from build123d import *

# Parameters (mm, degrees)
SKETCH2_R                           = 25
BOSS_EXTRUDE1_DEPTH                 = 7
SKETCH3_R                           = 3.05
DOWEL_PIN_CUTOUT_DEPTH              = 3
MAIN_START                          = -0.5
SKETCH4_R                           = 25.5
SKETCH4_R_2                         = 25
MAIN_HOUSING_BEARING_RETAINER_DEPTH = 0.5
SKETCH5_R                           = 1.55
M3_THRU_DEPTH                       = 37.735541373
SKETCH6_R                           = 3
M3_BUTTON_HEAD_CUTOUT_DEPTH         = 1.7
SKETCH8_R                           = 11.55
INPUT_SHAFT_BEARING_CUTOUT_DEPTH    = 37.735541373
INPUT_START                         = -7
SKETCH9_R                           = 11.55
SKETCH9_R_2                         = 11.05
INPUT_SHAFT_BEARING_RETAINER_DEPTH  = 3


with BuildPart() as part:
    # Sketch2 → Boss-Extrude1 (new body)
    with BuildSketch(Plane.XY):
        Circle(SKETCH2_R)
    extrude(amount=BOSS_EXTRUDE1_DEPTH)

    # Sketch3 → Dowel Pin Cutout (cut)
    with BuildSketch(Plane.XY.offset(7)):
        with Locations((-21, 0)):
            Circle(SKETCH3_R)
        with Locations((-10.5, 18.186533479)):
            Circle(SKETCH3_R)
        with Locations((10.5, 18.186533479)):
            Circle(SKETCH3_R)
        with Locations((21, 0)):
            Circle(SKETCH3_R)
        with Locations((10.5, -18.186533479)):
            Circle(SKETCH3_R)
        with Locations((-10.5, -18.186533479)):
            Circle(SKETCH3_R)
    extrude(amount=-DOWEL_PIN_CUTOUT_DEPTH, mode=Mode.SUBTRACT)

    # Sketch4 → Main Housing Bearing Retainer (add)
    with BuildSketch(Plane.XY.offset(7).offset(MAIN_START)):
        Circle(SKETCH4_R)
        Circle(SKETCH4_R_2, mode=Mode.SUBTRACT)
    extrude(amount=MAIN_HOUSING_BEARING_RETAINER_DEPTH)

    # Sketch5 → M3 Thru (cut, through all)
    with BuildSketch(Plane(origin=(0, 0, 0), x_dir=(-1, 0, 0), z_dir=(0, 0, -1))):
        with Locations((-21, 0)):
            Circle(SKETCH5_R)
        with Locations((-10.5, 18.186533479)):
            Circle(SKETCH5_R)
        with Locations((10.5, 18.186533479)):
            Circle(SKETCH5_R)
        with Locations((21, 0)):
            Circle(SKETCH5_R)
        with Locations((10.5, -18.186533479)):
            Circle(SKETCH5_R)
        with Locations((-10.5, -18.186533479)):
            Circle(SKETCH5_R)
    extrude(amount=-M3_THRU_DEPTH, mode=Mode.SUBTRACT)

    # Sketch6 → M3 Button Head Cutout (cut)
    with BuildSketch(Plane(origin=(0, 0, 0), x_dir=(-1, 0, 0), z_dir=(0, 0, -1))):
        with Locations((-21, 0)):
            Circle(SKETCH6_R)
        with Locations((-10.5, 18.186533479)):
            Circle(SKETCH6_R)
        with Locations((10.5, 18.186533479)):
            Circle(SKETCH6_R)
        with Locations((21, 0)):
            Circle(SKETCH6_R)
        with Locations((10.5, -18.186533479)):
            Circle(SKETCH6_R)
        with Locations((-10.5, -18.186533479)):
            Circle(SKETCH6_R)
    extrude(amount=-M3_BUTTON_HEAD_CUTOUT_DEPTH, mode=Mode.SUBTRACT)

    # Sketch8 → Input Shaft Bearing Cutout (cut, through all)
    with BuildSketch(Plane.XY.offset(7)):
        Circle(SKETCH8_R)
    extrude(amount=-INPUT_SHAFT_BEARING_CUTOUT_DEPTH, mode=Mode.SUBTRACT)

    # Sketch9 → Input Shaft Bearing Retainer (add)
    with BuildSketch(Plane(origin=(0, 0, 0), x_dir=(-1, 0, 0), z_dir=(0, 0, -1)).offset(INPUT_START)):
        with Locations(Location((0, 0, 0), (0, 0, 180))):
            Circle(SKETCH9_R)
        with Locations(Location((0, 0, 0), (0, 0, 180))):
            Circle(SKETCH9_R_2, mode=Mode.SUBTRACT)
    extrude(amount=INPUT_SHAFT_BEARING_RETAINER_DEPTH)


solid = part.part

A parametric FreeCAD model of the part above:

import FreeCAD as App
import Part
import Sketcher
from FreeCAD import Vector
Q = App.Units.Quantity

doc = App.newDocument("Part")
body = doc.addObject("PartDesign::Body", "Body")

# Sketch on XY plane
sketch1 = body.newObject("Sketcher::SketchObject", "Sketch")
sketch1.AttachmentSupport = (doc.getObject("XY_Plane"), [""])
sketch1.MapMode = "FlatFace"
sketch1.addGeometry(Part.Circle(Vector(0, 0, 0), Vector(0, 0, 1), 25), False)
sketch1.addConstraint([
    Sketcher.Constraint("Coincident", 0, 3, -1, 1),
    Sketcher.Constraint("Diameter", 0, Q("50 mm")),
])
pad1 = body.newObject("PartDesign::Pad", "Pad")
pad1.Profile = sketch1
pad1.Length = 7

# Sketch on XY plane
sketch2 = body.newObject("Sketcher::SketchObject", "Sketch001")
sketch2.AttachmentSupport = (doc.getObject("XY_Plane"), [""])
sketch2.MapMode = "FlatFace"
sketch2.AttachmentOffset = App.Placement(Vector(0, 0, 7), App.Rotation())
sketch2.addGeometry([
    Part.Circle(Vector(-21, 0, 0), Vector(0, 0, 1), 3),  # 0
    Part.Circle(Vector(-10.5, 18.2, 0), Vector(0, 0, 1), 3),  # 1
    Part.Circle(Vector(10.5, 18.2, 0), Vector(0, 0, 1), 3),  # 2
    Part.Circle(Vector(21, 0, 0), Vector(0, 0, 1), 3),  # 3
    Part.Circle(Vector(10.5, -18.2, 0), Vector(0, 0, 1), 3),  # 4
    Part.Circle(Vector(-10.5, -18.2, 0), Vector(0, 0, 1), 3),  # 5
], False)
sketch2.addConstraint([
    Sketcher.Constraint("Equal", 0, 1),
    Sketcher.Constraint("Equal", 1, 2),
    Sketcher.Constraint("Equal", 2, 3),
    Sketcher.Constraint("Equal", 3, 4),
    Sketcher.Constraint("Equal", 4, 5),
    Sketcher.Constraint("Symmetric", 0, 3, 3, 3, -1, 1),
    Sketcher.Constraint("Symmetric", 1, 3, 4, 3, -1, 1),
    Sketcher.Constraint("Symmetric", 2, 3, 5, 3, -1, 1),
    Sketcher.Constraint("Symmetric", 1, 3, 2, 3, -2),
    Sketcher.Constraint("PointOnObject", 0, 3, -1),
    Sketcher.Constraint("Diameter", 0, Q("6.1 mm")),
    Sketcher.Constraint("DistanceX", 0, 3, -1, 1, Q("21 mm")),
    Sketcher.Constraint("DistanceX", 1, 3, 2, 3, Q("21 mm")),
    Sketcher.Constraint("DistanceY", -1, 1, 1, 3, Q("18.186533 mm")),
])
pocket1 = body.newObject("PartDesign::Pocket", "Pocket")
pocket1.Profile = sketch2
pocket1.Length = 3

# Sketch on XY plane
sketch3 = body.newObject("Sketcher::SketchObject", "Sketch002")
sketch3.AttachmentSupport = (doc.getObject("XY_Plane"), [""])
sketch3.MapMode = "FlatFace"
sketch3.AttachmentOffset = App.Placement(Vector(0, 0, 6.5), App.Rotation())
sketch3.addGeometry([
    Part.Circle(Vector(0, 0, 0), Vector(0, 0, 1), 26),
    Part.Circle(Vector(0, 0, 0), Vector(0, 0, 1), 25),
], False)
sketch3.addConstraint([
    Sketcher.Constraint("Coincident", 0, 3, -1, 1),
    Sketcher.Constraint("Coincident", 1, 3, -1, 1),
    Sketcher.Constraint("Diameter", 0, Q("51 mm")),
    Sketcher.Constraint("Diameter", 1, Q("50 mm")),
])
pad2 = body.newObject("PartDesign::Pad", "Pad001")
pad2.Profile = sketch3
pad2.Length = 0.5

# Sketch on XY plane
sketch4 = body.newObject("Sketcher::SketchObject", "Sketch003")
sketch4.AttachmentSupport = (doc.getObject("XY_Plane"), [""])
sketch4.MapMode = "FlatFace"
sketch4.addGeometry([
    Part.Circle(Vector(21, 0, 0), Vector(0, 0, 1), 1.6),  # 0
    Part.Circle(Vector(10.5, 18.2, 0), Vector(0, 0, 1), 1.6),  # 1
    Part.Circle(Vector(-10.5, 18.2, 0), Vector(0, 0, 1), 1.6),  # 2
    Part.Circle(Vector(-21, 0, 0), Vector(0, 0, 1), 1.6),  # 3
    Part.Circle(Vector(-10.5, -18.2, 0), Vector(0, 0, 1), 1.6),  # 4
    Part.Circle(Vector(10.5, -18.2, 0), Vector(0, 0, 1), 1.6),  # 5
], False)
sketch4.addConstraint([
    Sketcher.Constraint("Equal", 0, 1),
    Sketcher.Constraint("Equal", 1, 2),
    Sketcher.Constraint("Equal", 2, 3),
    Sketcher.Constraint("Equal", 3, 4),
    Sketcher.Constraint("Equal", 4, 5),
    Sketcher.Constraint("Symmetric", 0, 3, 3, 3, -1, 1),
    Sketcher.Constraint("Symmetric", 1, 3, 4, 3, -1, 1),
    Sketcher.Constraint("Symmetric", 2, 3, 5, 3, -1, 1),
    Sketcher.Constraint("Symmetric", 1, 3, 2, 3, -2),
    Sketcher.Constraint("PointOnObject", 0, 3, -1),
    Sketcher.Constraint("Diameter", 0, Q("3.1 mm")),
    Sketcher.Constraint("DistanceX", -1, 1, 0, 3, Q("21 mm")),
    Sketcher.Constraint("DistanceX", 2, 3, 1, 3, Q("21 mm")),
    Sketcher.Constraint("DistanceY", -1, 1, 1, 3, Q("18.186533 mm")),
])
pocket2 = body.newObject("PartDesign::Pocket", "Pocket001")
pocket2.Profile = sketch4
pocket2.Type = "ThroughAll"
pocket2.Reversed = True

# Sketch on XY plane
sketch5 = body.newObject("Sketcher::SketchObject", "Sketch004")
sketch5.AttachmentSupport = (doc.getObject("XY_Plane"), [""])
sketch5.MapMode = "FlatFace"
sketch5.addGeometry([
    Part.Circle(Vector(21, 0, 0), Vector(0, 0, 1), 3),  # 0
    Part.Circle(Vector(10.5, 18.2, 0), Vector(0, 0, 1), 3),  # 1
    Part.Circle(Vector(-10.5, 18.2, 0), Vector(0, 0, 1), 3),  # 2
    Part.Circle(Vector(-21, 0, 0), Vector(0, 0, 1), 3),  # 3
    Part.Circle(Vector(-10.5, -18.2, 0), Vector(0, 0, 1), 3),  # 4
    Part.Circle(Vector(10.5, -18.2, 0), Vector(0, 0, 1), 3),  # 5
], False)
sketch5.addConstraint([
    Sketcher.Constraint("Equal", 0, 1),
    Sketcher.Constraint("Equal", 1, 2),
    Sketcher.Constraint("Equal", 2, 3),
    Sketcher.Constraint("Equal", 3, 4),
    Sketcher.Constraint("Equal", 4, 5),
    Sketcher.Constraint("Symmetric", 0, 3, 3, 3, -1, 1),
    Sketcher.Constraint("Symmetric", 1, 3, 4, 3, -1, 1),
    Sketcher.Constraint("Symmetric", 2, 3, 5, 3, -1, 1),
    Sketcher.Constraint("Symmetric", 1, 3, 2, 3, -2),
    Sketcher.Constraint("PointOnObject", 0, 3, -1),
    Sketcher.Constraint("Diameter", 0, Q("6 mm")),
    Sketcher.Constraint("DistanceX", -1, 1, 0, 3, Q("21 mm")),
    Sketcher.Constraint("DistanceX", 2, 3, 1, 3, Q("21 mm")),
    Sketcher.Constraint("DistanceY", -1, 1, 1, 3, Q("18.186533 mm")),
])
pocket3 = body.newObject("PartDesign::Pocket", "Pocket002")
pocket3.Profile = sketch5
pocket3.Length = 1.7
pocket3.Reversed = True

# Sketch on XY plane
sketch6 = body.newObject("Sketcher::SketchObject", "Sketch005")
sketch6.AttachmentSupport = (doc.getObject("XY_Plane"), [""])
sketch6.MapMode = "FlatFace"
sketch6.AttachmentOffset = App.Placement(Vector(0, 0, 7), App.Rotation())
sketch6.addGeometry(Part.Circle(Vector(0, 0, 0), Vector(0, 0, 1), 12), False)
sketch6.addConstraint([
    Sketcher.Constraint("Coincident", 0, 3, -1, 1),
    Sketcher.Constraint("Diameter", 0, Q("23.1 mm")),
])
pocket4 = body.newObject("PartDesign::Pocket", "Pocket003")
pocket4.Profile = sketch6
pocket4.Type = "ThroughAll"

# Sketch on XY plane
sketch7 = body.newObject("Sketcher::SketchObject", "Sketch006")
sketch7.AttachmentSupport = (doc.getObject("XY_Plane"), [""])
sketch7.MapMode = "FlatFace"
sketch7.AttachmentOffset = App.Placement(Vector(0, 0, 7), App.Rotation())
sketch7.addGeometry([
    Part.Circle(Vector(0, 0, 0), Vector(0, 0, 1), 12),
    Part.Circle(Vector(0, 0, 0), Vector(0, 0, 1), 11),
], False)
sketch7.addConstraint([
    Sketcher.Constraint("Coincident", 0, 3, -1, 1),
    Sketcher.Constraint("Coincident", 1, 3, -1, 1),
    Sketcher.Constraint("Diameter", 0, Q("23.1 mm")),
    Sketcher.Constraint("Diameter", 1, Q("22.1 mm")),
])
pad3 = body.newObject("PartDesign::Pad", "Pad002")
pad3.Profile = sketch7
pad3.Length = 3
pad3.Reversed = True

doc.recompute()
